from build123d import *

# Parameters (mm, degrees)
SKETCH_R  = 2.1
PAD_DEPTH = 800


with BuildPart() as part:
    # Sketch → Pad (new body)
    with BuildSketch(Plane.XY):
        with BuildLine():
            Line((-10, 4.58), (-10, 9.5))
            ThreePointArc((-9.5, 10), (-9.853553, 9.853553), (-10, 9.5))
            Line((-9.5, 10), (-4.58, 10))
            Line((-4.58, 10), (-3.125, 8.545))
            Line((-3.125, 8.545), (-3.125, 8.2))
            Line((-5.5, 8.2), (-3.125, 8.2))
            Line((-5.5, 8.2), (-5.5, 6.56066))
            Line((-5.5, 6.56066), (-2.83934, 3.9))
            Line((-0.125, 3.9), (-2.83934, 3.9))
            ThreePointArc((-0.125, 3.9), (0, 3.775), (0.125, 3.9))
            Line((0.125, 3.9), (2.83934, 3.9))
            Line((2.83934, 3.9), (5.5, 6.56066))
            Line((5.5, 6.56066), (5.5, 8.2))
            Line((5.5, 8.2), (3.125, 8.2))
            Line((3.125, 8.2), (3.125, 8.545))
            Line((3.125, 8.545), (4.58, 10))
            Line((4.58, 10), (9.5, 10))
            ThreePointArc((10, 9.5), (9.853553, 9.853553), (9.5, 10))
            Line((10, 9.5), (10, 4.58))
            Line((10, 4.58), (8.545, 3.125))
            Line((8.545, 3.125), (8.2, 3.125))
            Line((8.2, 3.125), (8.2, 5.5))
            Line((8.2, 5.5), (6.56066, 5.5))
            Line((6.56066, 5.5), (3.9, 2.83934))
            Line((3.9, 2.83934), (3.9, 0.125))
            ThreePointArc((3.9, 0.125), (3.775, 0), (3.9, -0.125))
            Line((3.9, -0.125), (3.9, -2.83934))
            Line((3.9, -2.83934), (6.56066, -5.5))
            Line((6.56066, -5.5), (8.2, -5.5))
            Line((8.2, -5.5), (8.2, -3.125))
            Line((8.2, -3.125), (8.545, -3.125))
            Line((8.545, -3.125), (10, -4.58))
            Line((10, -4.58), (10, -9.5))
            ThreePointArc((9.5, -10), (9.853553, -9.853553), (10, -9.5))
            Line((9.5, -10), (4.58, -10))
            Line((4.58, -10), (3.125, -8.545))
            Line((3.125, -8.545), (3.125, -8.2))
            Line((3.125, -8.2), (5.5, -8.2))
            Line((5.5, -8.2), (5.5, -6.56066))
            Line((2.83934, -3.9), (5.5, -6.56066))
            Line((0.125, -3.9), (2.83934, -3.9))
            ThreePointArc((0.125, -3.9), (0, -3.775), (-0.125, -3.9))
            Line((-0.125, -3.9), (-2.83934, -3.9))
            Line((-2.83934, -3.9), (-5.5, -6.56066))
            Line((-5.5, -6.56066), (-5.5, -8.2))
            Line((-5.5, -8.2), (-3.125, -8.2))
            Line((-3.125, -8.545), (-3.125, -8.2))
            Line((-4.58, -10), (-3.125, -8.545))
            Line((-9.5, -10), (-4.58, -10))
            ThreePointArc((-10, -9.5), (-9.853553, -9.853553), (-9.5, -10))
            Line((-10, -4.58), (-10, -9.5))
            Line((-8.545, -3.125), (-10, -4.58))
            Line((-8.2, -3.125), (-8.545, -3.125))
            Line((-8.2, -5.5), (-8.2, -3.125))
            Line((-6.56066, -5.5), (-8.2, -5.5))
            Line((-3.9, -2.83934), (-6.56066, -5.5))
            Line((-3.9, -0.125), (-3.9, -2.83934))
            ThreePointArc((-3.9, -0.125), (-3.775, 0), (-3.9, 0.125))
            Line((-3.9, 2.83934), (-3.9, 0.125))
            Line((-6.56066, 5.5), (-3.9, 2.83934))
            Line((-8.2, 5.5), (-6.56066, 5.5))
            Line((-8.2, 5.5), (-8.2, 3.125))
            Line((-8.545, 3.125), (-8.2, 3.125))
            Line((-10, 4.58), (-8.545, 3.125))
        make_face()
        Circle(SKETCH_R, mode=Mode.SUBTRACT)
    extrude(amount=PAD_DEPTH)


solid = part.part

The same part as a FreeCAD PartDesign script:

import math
import FreeCAD as App
import Part
import Sketcher

doc = App.newDocument("Part")
body = doc.addObject("PartDesign::Body", "Body")

sketch1 = doc.addObject("Sketcher::SketchObject", "Sketch")
body.addObject(sketch1)
sketch1.AttachmentSupport = (doc.XY_Plane, [""])
sketch1.MapMode = "FlatFace"
sketch1.addGeometry(Part.LineSegment(App.Vector(-10, 9.5, 0), App.Vector(-10, 4.58, 0)), False)
sketch1.addGeometry(Part.LineSegment(App.Vector(-10, 4.58, 0), App.Vector(-8.545, 3.125, 0)), False)
sketch1.addGeometry(Part.LineSegment(App.Vector(-8.545, 3.125, 0), App.Vector(-8.2, 3.125, 0)), False)
sketch1.addGeometry(Part.LineSegment(App.Vector(-8.2, 3.125, 0), App.Vector(-8.2, 5.5, 0)), False)
sketch1.addGeometry(Part.LineSegment(App.Vector(-8.2, 5.5, 0), App.Vector(-6.56066, 5.5, 0)), False)
sketch1.addGeometry(Part.LineSegment(App.Vector(-6.56066, 5.5, 0), App.Vector(-3.9, 2.83934, 0)), False)
sketch1.addGeometry(Part.LineSegment(App.Vector(-3.9, 2.83934, 0), App.Vector(-3.9, 0.125, 0)), False)
sketch1.addGeometry(Part.ArcOfCircle(Part.Circle(App.Vector(-3.9, 0, 0), App.Vector(0, 0, 1), 0.125), math.radians(-90), math.radians(90)), False)
sketch1.addGeometry(Part.LineSegment(App.Vector(-3.9, -0.125, 0), App.Vector(-3.9, -2.83934, 0)), False)
sketch1.addGeometry(Part.LineSegment(App.Vector(-3.9, -2.83934, 0), App.Vector(-6.56066, -5.5, 0)), False)
sketch1.addGeometry(Part.LineSegment(App.Vector(-6.56066, -5.5, 0), App.Vector(-8.2, -5.5, 0)), False)
sketch1.addGeometry(Part.LineSegment(App.Vector(-8.2, -5.5, 0), App.Vector(-8.2, -3.125, 0)), False)
sketch1.addGeometry(Part.LineSegment(App.Vector(-8.2, -3.125, 0), App.Vector(-8.545, -3.125, 0)), False)
sketch1.addGeometry(Part.LineSegment(App.Vector(-8.545, -3.125, 0), App.Vector(-10, -4.58, 0)), False)
sketch1.addGeometry(Part.LineSegment(App.Vector(-10, -4.58, 0), App.Vector(-10, -9.5, 0)), False)
sketch1.addGeometry(Part.ArcOfCircle(Part.Circle(App.Vector(-9.499999, -9.499999, 0), App.Vector(0, 0, 1), 0.500001), math.radians(-179.999847), math.radians(-90.000153)), False)
sketch1.addGeometry(Part.LineSegment(App.Vector(-9.5, -10, 0), App.Vector(-4.58, -10, 0)), False)
sketch1.addGeometry(Part.LineSegment(App.Vector(-4.58, -10, 0), App.Vector(-3.125, -8.545, 0)), False)
sketch1.addGeometry(Part.LineSegment(App.Vector(-3.125, -8.545, 0), App.Vector(-3.125, -8.2, 0)), False)
sketch1.addGeometry(Part.LineSegment(App.Vector(-3.125, -8.2, 0), App.Vector(-5.5, -8.2, 0)), False)
sketch1.addGeometry(Part.LineSegment(App.Vector(-5.5, -8.2, 0), App.Vector(-5.5, -6.56066, 0)), False)
sketch1.addGeometry(Part.LineSegment(App.Vector(-5.5, -6.56066, 0), App.Vector(-2.83934, -3.9, 0)), False)
sketch1.addGeometry(Part.LineSegment(App.Vector(-2.83934, -3.9, 0), App.Vector(-0.125, -3.9, 0)), False)
sketch1.addGeometry(Part.ArcOfCircle(Part.Circle(App.Vector(0, -3.9, 0), App.Vector(0, 0, 1), 0.125), math.radians(0), math.radians(180)), False)
sketch1.addGeometry(Part.LineSegment(App.Vector(0.125, -3.9, 0), App.Vector(2.83934, -3.9, 0)), False)
sketch1.addGeometry(Part.LineSegment(App.Vector(2.83934, -3.9, 0), App.Vector(5.5, -6.56066, 0)), False)
sketch1.addGeometry(Part.LineSegment(App.Vector(5.5, -6.56066, 0), App.Vector(5.5, -8.2, 0)), False)
sketch1.addGeometry(Part.LineSegment(App.Vector(5.5, -8.2, 0), App.Vector(3.125, -8.2, 0)), False)
sketch1.addGeometry(Part.LineSegment(App.Vector(3.125, -8.2, 0), App.Vector(3.125, -8.545, 0)), False)
sketch1.addGeometry(Part.LineSegment(App.Vector(3.125, -8.545, 0), App.Vector(4.58, -10, 0)), False)
sketch1.addGeometry(Part.LineSegment(App.Vector(4.58, -10, 0), App.Vector(9.5, -10, 0)), False)
sketch1.addGeometry(Part.ArcOfCircle(Part.Circle(App.Vector(9.499999, -9.499999, 0), App.Vector(0, 0, 1), 0.500001), math.radians(-89.999847), math.radians(-0.000153)), False)
sketch1.addGeometry(Part.LineSegment(App.Vector(10, -9.5, 0), App.Vector(10, -4.58, 0)), False)
sketch1.addGeometry(Part.LineSegment(App.Vector(10, -4.58, 0), App.Vector(8.545, -3.125, 0)), False)
sketch1.addGeometry(Part.LineSegment(App.Vector(8.545, -3.125, 0), App.Vector(8.2, -3.125, 0)), False)
sketch1.addGeometry(Part.LineSegment(App.Vector(8.2, -3.125, 0), App.Vector(8.2, -5.5, 0)), False)
sketch1.addGeometry(Part.LineSegment(App.Vector(8.2, -5.5, 0), App.Vector(6.56066, -5.5, 0)), False)
sketch1.addGeometry(Part.LineSegment(App.Vector(6.56066, -5.5, 0), App.Vector(3.9, -2.83934, 0)), False)
sketch1.addGeometry(Part.LineSegment(App.Vector(3.9, -2.83934, 0), App.Vector(3.9, -0.125, 0)), False)
sketch1.addGeometry(Part.ArcOfCircle(Part.Circle(App.Vector(3.9, 0, 0), App.Vector(0, 0, 1), 0.125), math.radians(90), math.radians(270)), False)
sketch1.addGeometry(Part.LineSegment(App.Vector(3.9, 0.125, 0), App.Vector(3.9, 2.83934, 0)), False)
sketch1.addGeometry(Part.LineSegment(App.Vector(3.9, 2.83934, 0), App.Vector(6.56066, 5.5, 0)), False)
sketch1.addGeometry(Part.LineSegment(App.Vector(6.56066, 5.5, 0), App.Vector(8.2, 5.5, 0)), False)
sketch1.addGeometry(Part.LineSegment(App.Vector(8.2, 5.5, 0), App.Vector(8.2, 3.125, 0)), False)
sketch1.addGeometry(Part.LineSegment(App.Vector(8.2, 3.125, 0), App.Vector(8.545, 3.125, 0)), False)
sketch1.addGeometry(Part.LineSegment(App.Vector(8.545, 3.125, 0), App.Vector(10, 4.58, 0)), False)
sketch1.addGeometry(Part.LineSegment(App.Vector(10, 4.58, 0), App.Vector(10, 9.5, 0)), False)
sketch1.addGeometry(Part.ArcOfCircle(Part.Circle(App.Vector(9.499999, 9.499999, 0), App.Vector(0, 0, 1), 0.500001), math.radians(0.000153), math.radians(89.999847)), False)
sketch1.addGeometry(Part.LineSegment(App.Vector(9.5, 10, 0), App.Vector(4.58, 10, 0)), False)
sketch1.addGeometry(Part.LineSegment(App.Vector(4.58, 10, 0), App.Vector(3.125, 8.545, 0)), False)
sketch1.addGeometry(Part.LineSegment(App.Vector(3.125, 8.545, 0), App.Vector(3.125, 8.2, 0)), False)
sketch1.addGeometry(Part.LineSegment(App.Vector(3.125, 8.2, 0), App.Vector(5.5, 8.2, 0)), False)
sketch1.addGeometry(Part.LineSegment(App.Vector(5.5, 8.2, 0), App.Vector(5.5, 6.56066, 0)), False)
sketch1.addGeometry(Part.LineSegment(App.Vector(5.5, 6.56066, 0), App.Vector(2.83934, 3.9, 0)), False)
sketch1.addGeometry(Part.LineSegment(App.Vector(2.83934, 3.9, 0), App.Vector(0.125, 3.9, 0)), False)
sketch1.addGeometry(Part.ArcOfCircle(Part.Circle(App.Vector(0, 3.9, 0), App.Vector(0, 0, 1), 0.125), math.radians(180), math.radians(360)), False)
sketch1.addGeometry(Part.LineSegment(App.Vector(-0.125, 3.9, 0), App.Vector(-2.83934, 3.9, 0)), False)
sketch1.addGeometry(Part.LineSegment(App.Vector(-2.83934, 3.9, 0), App.Vector(-5.5, 6.56066, 0)), False)
sketch1.addGeometry(Part.LineSegment(App.Vector(-5.5, 6.56066, 0), App.Vector(-5.5, 8.2, 0)), False)
sketch1.addGeometry(Part.LineSegment(App.Vector(-5.5, 8.2, 0), App.Vector(-3.125, 8.2, 0)), False)
sketch1.addGeometry(Part.LineSegment(App.Vector(-3.125, 8.2, 0), App.Vector(-3.125, 8.545, 0)), False)
sketch1.addGeometry(Part.LineSegment(App.Vector(-3.125, 8.545, 0), App.Vector(-4.58, 10, 0)), False)
sketch1.addGeometry(Part.LineSegment(App.Vector(-4.58, 10, 0), App.Vector(-9.5, 10, 0)), False)
sketch1.addGeometry(Part.ArcOfCircle(Part.Circle(App.Vector(-9.499999, 9.499999, 0), App.Vector(0, 0, 1), 0.500001), math.radians(90.000153), math.radians(179.999847)), False)
sketch1.addGeometry(Part.Circle(App.Vector(0, 0, 0), App.Vector(0, 0, 1), 2.1), False)
sketch1.addConstraint(Sketcher.Constraint("Coincident", 0, 2, 1, 1))
sketch1.addConstraint(Sketcher.Constraint("Coincident", 1, 2, 2, 1))
sketch1.addConstraint(Sketcher.Constraint("Coincident", 2, 2, 3, 1))
sketch1.addConstraint(Sketcher.Constraint("Coincident", 3, 2, 4, 1))
sketch1.addConstraint(Sketcher.Constraint("Coincident", 4, 2, 5, 1))
sketch1.addConstraint(Sketcher.Constraint("Coincident", 5, 2, 6, 1))
sketch1.addConstraint(Sketcher.Constraint("Coincident", 6, 2, 7, 2))
sketch1.addConstraint(Sketcher.Constraint("Coincident", 7, 1, 8, 1))
sketch1.addConstraint(Sketcher.Constraint("Coincident", 8, 2, 9, 1))
sketch1.addConstraint(Sketcher.Constraint("Coincident", 9, 2, 10, 1))
sketch1.addConstraint(Sketcher.Constraint("Coincident", 10, 2, 11, 1))
sketch1.addConstraint(Sketcher.Constraint("Coincident", 11, 2, 12, 1))
sketch1.addConstraint(Sketcher.Constraint("Coincident", 12, 2, 13, 1))
sketch1.addConstraint(Sketcher.Constraint("Coincident", 13, 2, 14, 1))
sketch1.addConstraint(Sketcher.Constraint("Coincident", 14, 2, 15, 1))
sketch1.addConstraint(Sketcher.Constraint("Coincident", 15, 2, 16, 1))
sketch1.addConstraint(Sketcher.Constraint("Coincident", 16, 2, 17, 1))
sketch1.addConstraint(Sketcher.Constraint("Coincident", 17, 2, 18, 1))
sketch1.addConstraint(Sketcher.Constraint("Coincident", 18, 2, 19, 1))
sketch1.addConstraint(Sketcher.Constraint("Coincident", 19, 2, 20, 1))
sketch1.addConstraint(Sketcher.Constraint("Coincident", 20, 2, 21, 1))
sketch1.addConstraint(Sketcher.Constraint("Coincident", 21, 2, 22, 1))
sketch1.addConstraint(Sketcher.Constraint("Coincident", 22, 2, 23, 2))
sketch1.addConstraint(Sketcher.Constraint("Coincident", 23, 1, 24, 1))
sketch1.addConstraint(Sketcher.Constraint("Coincident", 24, 2, 25, 1))
sketch1.addConstraint(Sketcher.Constraint("Coincident", 25, 2, 26, 1))
sketch1.addConstraint(Sketcher.Constraint("Coincident", 26, 2, 27, 1))
sketch1.addConstraint(Sketcher.Constraint("Coincident", 27, 2, 28, 1))
sketch1.addConstraint(Sketcher.Constraint("Coincident", 28, 2, 29, 1))
sketch1.addConstraint(Sketcher.Constraint("Coincident", 29, 2, 30, 1))
sketch1.addConstraint(Sketcher.Constraint("Coincident", 30, 2, 31, 1))
sketch1.addConstraint(Sketcher.Constraint("Coincident", 31, 2, 32, 1))
sketch1.addConstraint(Sketcher.Constraint("Coincident", 32, 2, 33, 1))
sketch1.addConstraint(Sketcher.Constraint("Coincident", 33, 2, 34, 1))
sketch1.addConstraint(Sketcher.Constraint("Coincident", 34, 2, 35, 1))
sketch1.addConstraint(Sketcher.Constraint("Coincident", 35, 2, 36, 1))
sketch1.addConstraint(Sketcher.Constraint("Coincident", 36, 2, 37, 1))
sketch1.addConstraint(Sketcher.Constraint("Coincident", 37, 2, 38, 1))
sketch1.addConstraint(Sketcher.Constraint("Coincident", 38, 2, 39, 2))
sketch1.addConstraint(Sketcher.Constraint("Coincident", 39, 1, 40, 1))
sketch1.addConstraint(Sketcher.Constraint("Coincident", 40, 2, 41, 1))
sketch1.addConstraint(Sketcher.Constraint("Coincident", 41, 2, 42, 1))
sketch1.addConstraint(Sketcher.Constraint("Coincident", 42, 2, 43, 1))
sketch1.addConstraint(Sketcher.Constraint("Coincident", 43, 2, 44, 1))
sketch1.addConstraint(Sketcher.Constraint("Coincident", 44, 2, 45, 1))
sketch1.addConstraint(Sketcher.Constraint("Coincident", 45, 2, 46, 1))
sketch1.addConstraint(Sketcher.Constraint("Coincident", 46, 2, 47, 1))
sketch1.addConstraint(Sketcher.Constraint("Coincident", 47, 2, 48, 1))
sketch1.addConstraint(Sketcher.Constraint("Coincident", 48, 2, 49, 1))
sketch1.addConstraint(Sketcher.Constraint("Coincident", 49, 2, 50, 1))
sketch1.addConstraint(Sketcher.Constraint("Coincident", 50, 2, 51, 1))
sketch1.addConstraint(Sketcher.Constraint("Coincident", 51, 2, 52, 1))
sketch1.addConstraint(Sketcher.Constraint("Coincident", 52, 2, 53, 1))
sketch1.addConstraint(Sketcher.Constraint("Coincident", 53, 2, 54, 1))
sketch1.addConstraint(Sketcher.Constraint("Coincident", 54, 2, 55, 2))
sketch1.addConstraint(Sketcher.Constraint("Coincident", 55, 1, 56, 1))
sketch1.addConstraint(Sketcher.Constraint("Coincident", 56, 2, 57, 1))
sketch1.addConstraint(Sketcher.Constraint("Coincident", 57, 2, 58, 1))
sketch1.addConstraint(Sketcher.Constraint("Coincident", 58, 2, 59, 1))
sketch1.addConstraint(Sketcher.Constraint("Coincident", 59, 2, 60, 1))
sketch1.addConstraint(Sketcher.Constraint("Coincident", 60, 2, 61, 1))
sketch1.addConstraint(Sketcher.Constraint("Coincident", 61, 2, 62, 1))
sketch1.addConstraint(Sketcher.Constraint("Coincident", 62, 2, 63, 1))
sketch1.addConstraint(Sketcher.Constraint("Coincident", 63, 2, 0, 1))
sketch1.addConstraint(Sketcher.Constraint("Vertical", 0))
sketch1.addConstraint(Sketcher.Constraint("Horizontal", 2))
sketch1.addConstraint(Sketcher.Constraint("Vertical", 3))
sketch1.addConstraint(Sketcher.Constraint("Horizontal", 4))
sketch1.addConstraint(Sketcher.Constraint("Vertical", 6))
sketch1.addConstraint(Sketcher.Constraint("Vertical", 8))
sketch1.addConstraint(Sketcher.Constraint("Horizontal", 10))
sketch1.addConstraint(Sketcher.Constraint("Vertical", 11))
sketch1.addConstraint(Sketcher.Constraint("Horizontal", 12))
sketch1.addConstraint(Sketcher.Constraint("Vertical", 14))
sketch1.addConstraint(Sketcher.Constraint("Horizontal", 16))
sketch1.addConstraint(Sketcher.Constraint("Vertical", 18))
sketch1.addConstraint(Sketcher.Constraint("Horizontal", 19))
sketch1.addConstraint(Sketcher.Constraint("Vertical", 20))
sketch1.addConstraint(Sketcher.Constraint("Horizontal", 22))
sketch1.addConstraint(Sketcher.Constraint("Horizontal", 24))
sketch1.addConstraint(Sketcher.Constraint("Vertical", 26))
sketch1.addConstraint(Sketcher.Constraint("Horizontal", 27))
sketch1.addConstraint(Sketcher.Constraint("Vertical", 28))
sketch1.addConstraint(Sketcher.Constraint("Horizontal", 30))
sketch1.addConstraint(Sketcher.Constraint("Vertical", 32))
sketch1.addConstraint(Sketcher.Constraint("Horizontal", 34))
sketch1.addConstraint(Sketcher.Constraint("Vertical", 35))
sketch1.addConstraint(Sketcher.Constraint("Horizontal", 36))
sketch1.addConstraint(Sketcher.Constraint("Vertical", 38))
sketch1.addConstraint(Sketcher.Constraint("Vertical", 40))
sketch1.addConstraint(Sketcher.Constraint("Horizontal", 42))
sketch1.addConstraint(Sketcher.Constraint("Vertical", 43))
sketch1.addConstraint(Sketcher.Constraint("Horizontal", 44))
sketch1.addConstraint(Sketcher.Constraint("Vertical", 46))
sketch1.addConstraint(Sketcher.Constraint("Horizontal", 48))
sketch1.addConstraint(Sketcher.Constraint("Vertical", 50))
sketch1.addConstraint(Sketcher.Constraint("Horizontal", 51))
sketch1.addConstraint(Sketcher.Constraint("Vertical", 52))
sketch1.addConstraint(Sketcher.Constraint("Horizontal", 54))
sketch1.addConstraint(Sketcher.Constraint("Horizontal", 56))
sketch1.addConstraint(Sketcher.Constraint("Vertical", 58))
sketch1.addConstraint(Sketcher.Constraint("Horizontal", 59))
sketch1.addConstraint(Sketcher.Constraint("Vertical", 60))
sketch1.addConstraint(Sketcher.Constraint("Horizontal", 62))
sketch1.addConstraint(Sketcher.Constraint("Coincident", 64, 3, -1, 1))
sketch1.addConstraint(Sketcher.Constraint("Equal", 7, 23))
sketch1.addConstraint(Sketcher.Constraint("Equal", 15, 31))
sketch1.addConstraint(Sketcher.Constraint("Equal", 23, 39))
sketch1.addConstraint(Sketcher.Constraint("Equal", 31, 47))
sketch1.addConstraint(Sketcher.Constraint("Equal", 39, 55))
sketch1.addConstraint(Sketcher.Constraint("Equal", 47, 63))
sketch1.addConstraint(Sketcher.Constraint("Symmetric", 7, 3, 39, 3, -1, 1))
sketch1.addConstraint(Sketcher.Constraint("Symmetric", 15, 3, 47, 3, -1, 1))
sketch1.addConstraint(Sketcher.Constraint("Symmetric", 23, 3, 55, 3, -1, 1))
sketch1.addConstraint(Sketcher.Constraint("Symmetric", 31, 3, 63, 3, -1, 1))
sketch1.addConstraint(Sketcher.Constraint("Symmetric", 1, 2, 33, 2, -1, 1))
sketch1.addConstraint(Sketcher.Constraint("Symmetric", 3, 2, 35, 2, -1, 1))
sketch1.addConstraint(Sketcher.Constraint("Symmetric", 5, 2, 37, 2, -1, 1))
sketch1.addConstraint(Sketcher.Constraint("Symmetric", 8, 2, 40, 2, -1, 1))
sketch1.addConstraint(Sketcher.Constraint("Symmetric", 9, 2, 41, 2, -1, 1))
sketch1.addConstraint(Sketcher.Constraint("Symmetric", 11, 2, 43, 2, -1, 1))
sketch1.addConstraint(Sketcher.Constraint("Symmetric", 17, 2, 49, 2, -1, 1))
sketch1.addConstraint(Sketcher.Constraint("Symmetric", 19, 2, 51, 2, -1, 1))
sketch1.addConstraint(Sketcher.Constraint("Symmetric", 21, 2, 53, 2, -1, 1))
sketch1.addConstraint(Sketcher.Constraint("Symmetric", 24, 2, 56, 2, -1, 1))
sketch1.addConstraint(Sketcher.Constraint("Symmetric", 25, 2, 57, 2, -1, 1))
sketch1.addConstraint(Sketcher.Constraint("Symmetric", 27, 2, 59, 2, -1, 1))
sketch1.addConstraint(Sketcher.Constraint("Symmetric", 15, 3, 31, 3, -2))
sketch1.addConstraint(Sketcher.Constraint("Symmetric", 22, 2, 23, 1, -2))
sketch1.addConstraint(Sketcher.Constraint("Symmetric", 20, 2, 25, 2, -2))
sketch1.addConstraint(Sketcher.Constraint("Symmetric", 18, 2, 27, 2, -2))
sketch1.addConstraint(Sketcher.Constraint("Symmetric", 12, 2, 33, 2, -2))
sketch1.addConstraint(Sketcher.Constraint("Symmetric", 10, 2, 35, 2, -2))
sketch1.addConstraint(Sketcher.Constraint("Symmetric", 8, 2, 37, 2, -2))
sketch1.addConstraint(Sketcher.Constraint("PointOnObject", 7, 3, -1))
sketch1.addConstraint(Sketcher.Constraint("Parallel", 1, 5))
sketch1.addConstraint(Sketcher.Constraint("Perpendicular", 5, 9))
sketch1.addConstraint(Sketcher.Constraint("Parallel", 9, 13))
sketch1.addConstraint(Sketcher.Constraint("Parallel", 13, 17))
sketch1.addConstraint(Sketcher.Constraint("Parallel", 17, 21))
sketch1.addConstraint(Sketcher.Constraint("Perpendicular", 21, 25))
sketch1.addConstraint(Sketcher.Constraint("Parallel", 25, 29))
sketch1.addConstraint(Sketcher.Constraint("Parallel", 29, 33))
sketch1.addConstraint(Sketcher.Constraint("Parallel", 33, 37))
sketch1.addConstraint(Sketcher.Constraint("Parallel", 41, 45))
sketch1.addConstraint(Sketcher.Constraint("Parallel", 45, 49))
sketch1.addConstraint(Sketcher.Constraint("Parallel", 49, 53))
sketch1.addConstraint(Sketcher.Constraint("Parallel", 57, 61))
sketch1.addConstraint(Sketcher.Constraint("Horizontal", 31, 3, 14, 2))
sketch1.addConstraint(Sketcher.Constraint("Horizontal", 23, 3, 21, 2))
sketch1.addConstraint(Sketcher.Constraint("Horizontal", 17, 2, 28, 2))
sketch1.addConstraint(Sketcher.Constraint("Horizontal", 14, 2, 31, 2))
sketch1.addConstraint(Sketcher.Constraint("Horizontal", 13, 2, 32, 2))
sketch1.addConstraint(Sketcher.Constraint("Horizontal", 0, 2, 45, 2))
sketch1.addConstraint(Sketcher.Constraint("Horizontal", 63, 3, 46, 2))
sketch1.addConstraint(Sketcher.Constraint("Horizontal", 49, 2, 60, 2))
sketch1.addConstraint(Sketcher.Constraint("Horizontal", 46, 2, 63, 2))
sketch1.addConstraint(Sketcher.Constraint("Vertical", 7, 3, 5, 2))
sketch1.addConstraint(Sketcher.Constraint("Vertical", 63, 3, 15, 2))
sketch1.addConstraint(Sketcher.Constraint("Vertical", 47, 3, 30, 2))
sketch1.addConstraint(Sketcher.Constraint("Vertical", 30, 2, 47, 2))
sketch1.addConstraint(Sketcher.Constraint("Vertical", 15, 2, 62, 2))
sketch1.addConstraint(Sketcher.Constraint("Equal", 62, 0))
sketch1.addConstraint(Sketcher.Constraint("Equal", 59, 3))
sketch1.addConstraint(Sketcher.Constraint("Equal", 56, 6))
sketch1.addConstraint(Sketcher.Constraint("Equal", 44, 18))
sketch1.addConstraint(Sketcher.Constraint("Equal", 42, 20))
sketch1.addConstraint(Sketcher.Constraint("Equal", 13, 17))
sketch1.addConstraint(Sketcher.Constraint("Equal", 9, 21))
sketch1.addConstraint(Sketcher.Constraint("Diameter", 64, 4.2))
sketch1.addConstraint(Sketcher.Constraint("Radius", 15, 0.500001))
sketch1.addConstraint(Sketcher.Constraint("DistanceX", 0, 2, -1, 1, 10.0))
sketch1.addConstraint(Sketcher.Constraint("Radius", 7, 0.125))
sketch1.addConstraint(Sketcher.Constraint("DistanceX", 16, 1, 16, 2, 4.92))
sketch1.addConstraint(Sketcher.Constraint("DistanceX", 7, 3, -1, 1, 3.9))
sketch1.addConstraint(Sketcher.Constraint("DistanceX", 2, 2, -1, 1, 8.2))
sketch1.addConstraint(Sketcher.Constraint("DistanceY", -1, 1, 3, 2, 5.5))
sketch1.addConstraint(Sketcher.Constraint("DistanceX", 2, 1, 2, 2, 0.345))
sketch1.addConstraint(Sketcher.Constraint("DistanceX", 4, 1, 4, 2, 1.63934))
pad1 = doc.addObject("PartDesign::Pad", "Pad")
body.addObject(pad1)
pad1.Profile = sketch1
pad1.Length = 800

doc.recompute()
